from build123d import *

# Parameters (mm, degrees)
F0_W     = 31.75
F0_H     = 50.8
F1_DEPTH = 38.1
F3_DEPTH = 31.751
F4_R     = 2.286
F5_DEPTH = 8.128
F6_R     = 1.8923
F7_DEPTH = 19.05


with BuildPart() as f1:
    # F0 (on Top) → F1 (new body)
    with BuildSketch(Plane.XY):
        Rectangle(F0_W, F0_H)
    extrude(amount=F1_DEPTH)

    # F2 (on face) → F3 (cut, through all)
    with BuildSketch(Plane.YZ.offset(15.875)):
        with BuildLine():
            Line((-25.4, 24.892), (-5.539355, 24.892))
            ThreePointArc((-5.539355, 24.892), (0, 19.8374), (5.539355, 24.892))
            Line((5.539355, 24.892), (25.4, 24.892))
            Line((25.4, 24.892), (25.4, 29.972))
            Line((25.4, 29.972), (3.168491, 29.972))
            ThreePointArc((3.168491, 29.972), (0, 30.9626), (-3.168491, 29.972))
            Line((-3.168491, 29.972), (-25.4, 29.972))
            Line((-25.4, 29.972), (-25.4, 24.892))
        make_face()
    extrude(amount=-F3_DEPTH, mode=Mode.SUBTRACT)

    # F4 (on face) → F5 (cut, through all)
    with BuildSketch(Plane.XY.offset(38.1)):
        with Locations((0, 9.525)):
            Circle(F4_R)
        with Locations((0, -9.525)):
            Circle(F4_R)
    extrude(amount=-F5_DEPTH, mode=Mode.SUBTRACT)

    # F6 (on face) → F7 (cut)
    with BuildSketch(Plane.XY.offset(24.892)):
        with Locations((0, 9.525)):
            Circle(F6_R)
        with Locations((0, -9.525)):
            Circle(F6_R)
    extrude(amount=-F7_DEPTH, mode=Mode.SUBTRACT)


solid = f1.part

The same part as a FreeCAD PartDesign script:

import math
import FreeCAD as App
import Part
import Sketcher
from FreeCAD import Vector
Q = App.Units.Quantity

doc = App.newDocument("Part")
body = doc.addObject("PartDesign::Body", "Body")
body.AllowCompound = True

# Sketch on XY plane
sketch1 = body.newObject("Sketcher::SketchObject", "Sketch")
sketch1.AttachmentSupport = (doc.getObject("XY_Plane"), [""])
sketch1.MapMode = "FlatFace"
sketch1.addGeometry([
    Part.LineSegment(Vector(-16, 25, 0), Vector(-16, -25, 0)),
    Part.LineSegment(Vector(-16, -25, 0), Vector(16, -25, 0)),
    Part.LineSegment(Vector(16, -25, 0), Vector(16, 25, 0)),
    Part.LineSegment(Vector(16, 25, 0), Vector(-16, 25, 0)),
], False)
sketch1.addConstraint([
    Sketcher.Constraint("Coincident", 0, 2, 1, 1),
    Sketcher.Constraint("Coincident", 1, 2, 2, 1),
    Sketcher.Constraint("Coincident", 2, 2, 3, 1),
    Sketcher.Constraint("Coincident", 3, 2, 0, 1),
    Sketcher.Constraint("Vertical", 0),
    Sketcher.Constraint("Horizontal", 1),
    Sketcher.Constraint("Vertical", 2),
    Sketcher.Constraint("Horizontal", 3),
    Sketcher.Constraint("Symmetric", 0, 2, 2, 2, -1, 1),
    Sketcher.Constraint("DistanceY", 0, 2, 0, 1, Q("2 in")),
    Sketcher.Constraint("DistanceX", 1, 1, 1, 2, Q("1.25 in")),
])
pad1 = body.newObject("PartDesign::Pad", "Pad")
pad1.Profile = sketch1
pad1.Length = Q("1.5 in")

# Sketch on YZ plane
sketch2 = body.newObject("Sketcher::SketchObject", "Sketch001")
sketch2.AttachmentSupport = (doc.getObject("YZ_Plane"), [""])
sketch2.MapMode = "FlatFace"
sketch2.AttachmentOffset = App.Placement(Vector(0, 0, 0.625 * 25.4), App.Rotation())
sketch2.addGeometry([
    Part.LineSegment(Vector(-25, 25, 0), Vector(-6, 25, 0)),  # 0
    Part.ArcOfCircle(Part.Circle(Vector(0, 25, 0), Vector(0, 0, 1), 6), math.radians(-175), math.radians(-5)),  # 1
    Part.LineSegment(Vector(6, 25, 0), Vector(25, 25, 0)),  # 2
    Part.LineSegment(Vector(25, 25, 0), Vector(25, 30, 0)),  # 3
    Part.LineSegment(Vector(25, 30, 0), Vector(3, 30, 0)),  # 4
    Part.ArcOfCircle(Part.Circle(Vector(0, 25, 0), Vector(0, 0, 1), 6), math.radians(55), math.radians(125)),  # 5
    Part.LineSegment(Vector(-3, 30, 0), Vector(-25, 30, 0)),  # 6
    Part.LineSegment(Vector(-25, 30, 0), Vector(-25, 25, 0)),  # 7
], False)
sketch2.addConstraint([
    Sketcher.Constraint("Coincident", 0, 2, 1, 1),
    Sketcher.Constraint("Coincident", 1, 2, 2, 1),
    Sketcher.Constraint("Coincident", 2, 2, 3, 1),
    Sketcher.Constraint("Coincident", 3, 2, 4, 1),
    Sketcher.Constraint("Coincident", 4, 2, 5, 1),
    Sketcher.Constraint("Coincident", 5, 2, 6, 1),
    Sketcher.Constraint("Coincident", 6, 2, 7, 1),
    Sketcher.Constraint("Coincident", 7, 2, 0, 1),
    Sketcher.Constraint("Horizontal", 0),
    Sketcher.Constraint("Horizontal", 2),
    Sketcher.Constraint("Vertical", 3),
    Sketcher.Constraint("Horizontal", 4),
    Sketcher.Constraint("Horizontal", 6),
    Sketcher.Constraint("Vertical", 7),
    Sketcher.Constraint("Coincident", 5, 3, 1, 3),
    Sketcher.Constraint("Equal", 1, 5),
    Sketcher.Constraint("Symmetric", 0, 2, 1, 2, -2),
    Sketcher.Constraint("Symmetric", 3, 2, 6, 2, -2),
    Sketcher.Constraint("DistanceY", 3, 1, 3, 2, Q("0.2 in")),
    Sketcher.Constraint("DistanceY", -1, 1, 1, 3, Q("1 in")),
    Sketcher.Constraint("DistanceX", -1, 1, 2, 2, Q("1 in")),
    Sketcher.Constraint("Radius", 1, Q("0.219 in")),
    Sketcher.Constraint("DistanceY", -1, 1, 0, 2, Q("0.98 in")),
])
pocket1 = body.newObject("PartDesign::Pocket", "Pocket")
pocket1.Profile = sketch2
pocket1.Type = "ThroughAll"

# Sketch on XY plane
sketch3 = body.newObject("Sketcher::SketchObject", "Sketch002")
sketch3.AttachmentSupport = (doc.getObject("XY_Plane"), [""])
sketch3.MapMode = "FlatFace"
sketch3.AttachmentOffset = App.Placement(Vector(0, 0, 1.5 * 25.4), App.Rotation())
sketch3.addGeometry([
    Part.Circle(Vector(0, 9.5, 0), Vector(0, 0, 1), 2.3),
    Part.Circle(Vector(0, -9.5, 0), Vector(0, 0, 1), 2.3),
], False)
sketch3.addConstraint([
    Sketcher.Constraint("Equal", 0, 1),
    Sketcher.Constraint("Symmetric", 0, 3, 1, 3, -1, 1),
    Sketcher.Constraint("PointOnObject", 0, 3, -2),
    Sketcher.Constraint("Diameter", 0, Q("0.18 in")),
    Sketcher.Constraint("DistanceY", 1, 3, 0, 3, Q("0.75 in")),
])
pocket2 = body.newObject("PartDesign::Pocket", "Pocket001")
pocket2.Profile = sketch3
pocket2.Length = Q("0.32 in")

# Sketch on XY plane
sketch4 = body.newObject("Sketcher::SketchObject", "Sketch003")
sketch4.AttachmentSupport = (doc.getObject("XY_Plane"), [""])
sketch4.MapMode = "FlatFace"
sketch4.AttachmentOffset = App.Placement(Vector(0, 0, 0.98 * 25.4), App.Rotation())
sketch4.addGeometry([
    Part.Circle(Vector(0, 9.5, 0), Vector(0, 0, 1), 1.9),
    Part.Circle(Vector(0, -9.5, 0), Vector(0, 0, 1), 1.9),
], False)
sketch4.addConstraint([
    Sketcher.Constraint("Equal", 0, 1),
    Sketcher.Constraint("Symmetric", 0, 3, 1, 3, -1, 1),
    Sketcher.Constraint("PointOnObject", 0, 3, -2),
    Sketcher.Constraint("Diameter", 0, Q("0.149 in")),
    Sketcher.Constraint("DistanceY", 1, 3, 0, 3, Q("0.75 in")),
])
pocket3 = body.newObject("PartDesign::Pocket", "Pocket002")
pocket3.Profile = sketch4
pocket3.Length = Q("0.75 in")

doc.recompute()
